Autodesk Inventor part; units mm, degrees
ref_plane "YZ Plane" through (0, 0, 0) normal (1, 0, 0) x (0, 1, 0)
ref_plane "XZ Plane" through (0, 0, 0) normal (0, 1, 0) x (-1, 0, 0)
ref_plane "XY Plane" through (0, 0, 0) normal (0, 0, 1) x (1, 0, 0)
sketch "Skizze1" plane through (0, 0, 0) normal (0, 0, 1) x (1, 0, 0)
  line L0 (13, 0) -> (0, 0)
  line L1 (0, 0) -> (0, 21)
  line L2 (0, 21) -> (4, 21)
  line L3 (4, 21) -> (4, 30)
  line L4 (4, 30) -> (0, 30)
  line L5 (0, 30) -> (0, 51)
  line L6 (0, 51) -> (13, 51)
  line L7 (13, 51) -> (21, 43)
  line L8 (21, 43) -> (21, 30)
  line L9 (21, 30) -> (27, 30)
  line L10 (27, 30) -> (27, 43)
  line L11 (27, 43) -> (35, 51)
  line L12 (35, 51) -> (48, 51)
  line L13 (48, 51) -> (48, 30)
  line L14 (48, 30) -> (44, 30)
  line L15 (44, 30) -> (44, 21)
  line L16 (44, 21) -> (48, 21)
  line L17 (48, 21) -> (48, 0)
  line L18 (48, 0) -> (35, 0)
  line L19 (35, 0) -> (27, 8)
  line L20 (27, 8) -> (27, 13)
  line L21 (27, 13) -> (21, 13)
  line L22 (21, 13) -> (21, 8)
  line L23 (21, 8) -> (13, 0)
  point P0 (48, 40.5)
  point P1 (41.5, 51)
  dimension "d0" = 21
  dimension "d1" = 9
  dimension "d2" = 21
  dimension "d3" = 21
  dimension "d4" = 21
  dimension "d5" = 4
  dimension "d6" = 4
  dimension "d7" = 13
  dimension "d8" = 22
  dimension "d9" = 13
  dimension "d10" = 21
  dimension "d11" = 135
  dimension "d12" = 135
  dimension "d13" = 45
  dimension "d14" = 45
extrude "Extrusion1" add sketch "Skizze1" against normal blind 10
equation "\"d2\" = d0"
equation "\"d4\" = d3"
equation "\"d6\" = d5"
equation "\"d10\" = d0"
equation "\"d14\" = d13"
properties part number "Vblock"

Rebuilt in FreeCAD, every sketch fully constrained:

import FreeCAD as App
import Part
import Sketcher

V = App.Vector
Q = App.Units.Quantity

doc = App.newDocument("Part")
body = doc.addObject("PartDesign::Body", "Body")

# Sketch on XY plane
sketch1 = doc.addObject("Sketcher::SketchObject", "Sketch")
body.addObject(sketch1)
sketch1.AttachmentSupport = (doc.XY_Plane, [""])
sketch1.MapMode = "FlatFace"
sketch1.addGeometry(Part.LineSegment(V(0, 0, 0), V(13, 0, 0)), False)
sketch1.addGeometry(Part.LineSegment(V(13, 0, 0), V(21, 8, 0)), False)
sketch1.addGeometry(Part.LineSegment(V(21, 8, 0), V(21, 13, 0)), False)
sketch1.addGeometry(Part.LineSegment(V(21, 13, 0), V(27, 13, 0)), False)
sketch1.addGeometry(Part.LineSegment(V(27, 13, 0), V(27, 8, 0)), False)
sketch1.addGeometry(Part.LineSegment(V(27, 8, 0), V(35, 0, 0)), False)
sketch1.addGeometry(Part.LineSegment(V(35, 0, 0), V(48, 0, 0)), False)
sketch1.addGeometry(Part.LineSegment(V(48, 0, 0), V(48, 21, 0)), False)
sketch1.addGeometry(Part.LineSegment(V(48, 21, 0), V(44, 21, 0)), False)
sketch1.addGeometry(Part.LineSegment(V(44, 21, 0), V(44, 30, 0)), False)
sketch1.addGeometry(Part.LineSegment(V(44, 30, 0), V(48, 30, 0)), False)
sketch1.addGeometry(Part.LineSegment(V(48, 30, 0), V(48, 51, 0)), False)
sketch1.addGeometry(Part.LineSegment(V(48, 51, 0), V(35, 51, 0)), False)
sketch1.addGeometry(Part.LineSegment(V(35, 51, 0), V(27, 43, 0)), False)
sketch1.addGeometry(Part.LineSegment(V(27, 43, 0), V(27, 30, 0)), False)
sketch1.addGeometry(Part.LineSegment(V(27, 30, 0), V(21, 30, 0)), False)
sketch1.addGeometry(Part.LineSegment(V(21, 30, 0), V(21, 43, 0)), False)
sketch1.addGeometry(Part.LineSegment(V(21, 43, 0), V(13, 51, 0)), False)
sketch1.addGeometry(Part.LineSegment(V(13, 51, 0), V(0, 51, 0)), False)
sketch1.addGeometry(Part.LineSegment(V(0, 51, 0), V(0, 30, 0)), False)
sketch1.addGeometry(Part.LineSegment(V(0, 30, 0), V(4, 30, 0)), False)
sketch1.addGeometry(Part.LineSegment(V(4, 30, 0), V(4, 21, 0)), False)
sketch1.addGeometry(Part.LineSegment(V(4, 21, 0), V(0, 21, 0)), False)
sketch1.addGeometry(Part.LineSegment(V(0, 21, 0), V(0, 0, 0)), False)
sketch1.addConstraint(Sketcher.Constraint("Coincident", 0, 2, 1, 1))
sketch1.addConstraint(Sketcher.Constraint("Coincident", 1, 2, 2, 1))
sketch1.addConstraint(Sketcher.Constraint("Coincident", 2, 2, 3, 1))
sketch1.addConstraint(Sketcher.Constraint("Coincident", 3, 2, 4, 1))
sketch1.addConstraint(Sketcher.Constraint("Coincident", 4, 2, 5, 1))
sketch1.addConstraint(Sketcher.Constraint("Coincident", 5, 2, 6, 1))
sketch1.addConstraint(Sketcher.Constraint("Coincident", 6, 2, 7, 1))
sketch1.addConstraint(Sketcher.Constraint("Coincident", 7, 2, 8, 1))
sketch1.addConstraint(Sketcher.Constraint("Coincident", 8, 2, 9, 1))
sketch1.addConstraint(Sketcher.Constraint("Coincident", 9, 2, 10, 1))
sketch1.addConstraint(Sketcher.Constraint("Coincident", 10, 2, 11, 1))
sketch1.addConstraint(Sketcher.Constraint("Coincident", 11, 2, 12, 1))
sketch1.addConstraint(Sketcher.Constraint("Coincident", 12, 2, 13, 1))
sketch1.addConstraint(Sketcher.Constraint("Coincident", 13, 2, 14, 1))
sketch1.addConstraint(Sketcher.Constraint("Coincident", 14, 2, 15, 1))
sketch1.addConstraint(Sketcher.Constraint("Coincident", 15, 2, 16, 1))
sketch1.addConstraint(Sketcher.Constraint("Coincident", 16, 2, 17, 1))
sketch1.addConstraint(Sketcher.Constraint("Coincident", 17, 2, 18, 1))
sketch1.addConstraint(Sketcher.Constraint("Coincident", 18, 2, 19, 1))
sketch1.addConstraint(Sketcher.Constraint("Coincident", 19, 2, 20, 1))
sketch1.addConstraint(Sketcher.Constraint("Coincident", 20, 2, 21, 1))
sketch1.addConstraint(Sketcher.Constraint("Coincident", 21, 2, 22, 1))
sketch1.addConstraint(Sketcher.Constraint("Coincident", 22, 2, 23, 1))
sketch1.addConstraint(Sketcher.Constraint("Coincident", 23, 2, 0, 1))
sketch1.addConstraint(Sketcher.Constraint("Horizontal", 0))
sketch1.addConstraint(Sketcher.Constraint("Vertical", 2))
sketch1.addConstraint(Sketcher.Constraint("Horizontal", 3))
sketch1.addConstraint(Sketcher.Constraint("Vertical", 4))
sketch1.addConstraint(Sketcher.Constraint("Horizontal", 6))
sketch1.addConstraint(Sketcher.Constraint("Vertical", 7))
sketch1.addConstraint(Sketcher.Constraint("Horizontal", 8))
sketch1.addConstraint(Sketcher.Constraint("Vertical", 9))
sketch1.addConstraint(Sketcher.Constraint("Horizontal", 10))
sketch1.addConstraint(Sketcher.Constraint("Vertical", 11))
sketch1.addConstraint(Sketcher.Constraint("Horizontal", 12))
sketch1.addConstraint(Sketcher.Constraint("Vertical", 14))
sketch1.addConstraint(Sketcher.Constraint("Horizontal", 15))
sketch1.addConstraint(Sketcher.Constraint("Vertical", 16))
sketch1.addConstraint(Sketcher.Constraint("Horizontal", 18))
sketch1.addConstraint(Sketcher.Constraint("Vertical", 19))
sketch1.addConstraint(Sketcher.Constraint("Horizontal", 20))
sketch1.addConstraint(Sketcher.Constraint("Vertical", 21))
sketch1.addConstraint(Sketcher.Constraint("Horizontal", 22))
sketch1.addConstraint(Sketcher.Constraint("Vertical", 23))
sketch1.addConstraint(Sketcher.Constraint("Coincident", 23, 2, -1, 1))
sketch1.addConstraint(Sketcher.Constraint("PointOnObject", 5, 2, -1))
sketch1.addConstraint(Sketcher.Constraint("PointOnObject", 18, 2, -2))
sketch1.addConstraint(Sketcher.Constraint("Perpendicular", 1, 5))
sketch1.addConstraint(Sketcher.Constraint("Perpendicular", 5, 13))
sketch1.addConstraint(Sketcher.Constraint("Perpendicular", 13, 17))
sketch1.addConstraint(Sketcher.Constraint("Horizontal", 1, 2, 4, 2))
sketch1.addConstraint(Sketcher.Constraint("Horizontal", 10, 2, 14, 2))
sketch1.addConstraint(Sketcher.Constraint("Horizontal", 13, 2, 16, 2))
sketch1.addConstraint(Sketcher.Constraint("Horizontal", 12, 2, 17, 2))
sketch1.addConstraint(Sketcher.Constraint("Horizontal", 15, 2, 19, 2))
sketch1.addConstraint(Sketcher.Constraint("Horizontal", 8, 2, 21, 2))
sketch1.addConstraint(Sketcher.Constraint("Vertical", 7, 2, 10, 2))
sketch1.addConstraint(Sketcher.Constraint("Vertical", 5, 2, 12, 2))
sketch1.addConstraint(Sketcher.Constraint("Vertical", 4, 2, 13, 2))
sketch1.addConstraint(Sketcher.Constraint("Vertical", 2, 2, 15, 2))
sketch1.addConstraint(Sketcher.Constraint("Vertical", 0, 2, 17, 2))
sketch1.addConstraint(Sketcher.Constraint("Equal", 0, 6))
sketch1.addConstraint(Sketcher.Constraint("Equal", 10, 20))
sketch1.addConstraint(Sketcher.Constraint("Equal", 7, 11))
sketch1.addConstraint(Sketcher.Constraint("Equal", 18, 14))
sketch1.addConstraint(Sketcher.Constraint("DistanceX", 0, 1, 0, 2, Q("13 mm")))
sketch1.addConstraint(Sketcher.Constraint("DistanceX", 8, 2, 8, 1, Q("4 mm")))
sketch1.addConstraint(Sketcher.Constraint("DistanceY", 7, 1, 7, 2, Q("21 mm")))
sketch1.addConstraint(Sketcher.Constraint("DistanceY", 9, 1, 9, 2, Q("9 mm")))
sketch1.addConstraint(Sketcher.Constraint("DistanceY", -1, 1, 2, 2, Q("13 mm")))
sketch1.addConstraint(Sketcher.Constraint("DistanceX", 0, 2, 5, 2, Q("22 mm")))
pad1 = doc.addObject("PartDesign::Pad", "Pad")
body.addObject(pad1)
pad1.Profile = sketch1
pad1.Length = 10
pad1.Reversed = True

doc.recompute()
